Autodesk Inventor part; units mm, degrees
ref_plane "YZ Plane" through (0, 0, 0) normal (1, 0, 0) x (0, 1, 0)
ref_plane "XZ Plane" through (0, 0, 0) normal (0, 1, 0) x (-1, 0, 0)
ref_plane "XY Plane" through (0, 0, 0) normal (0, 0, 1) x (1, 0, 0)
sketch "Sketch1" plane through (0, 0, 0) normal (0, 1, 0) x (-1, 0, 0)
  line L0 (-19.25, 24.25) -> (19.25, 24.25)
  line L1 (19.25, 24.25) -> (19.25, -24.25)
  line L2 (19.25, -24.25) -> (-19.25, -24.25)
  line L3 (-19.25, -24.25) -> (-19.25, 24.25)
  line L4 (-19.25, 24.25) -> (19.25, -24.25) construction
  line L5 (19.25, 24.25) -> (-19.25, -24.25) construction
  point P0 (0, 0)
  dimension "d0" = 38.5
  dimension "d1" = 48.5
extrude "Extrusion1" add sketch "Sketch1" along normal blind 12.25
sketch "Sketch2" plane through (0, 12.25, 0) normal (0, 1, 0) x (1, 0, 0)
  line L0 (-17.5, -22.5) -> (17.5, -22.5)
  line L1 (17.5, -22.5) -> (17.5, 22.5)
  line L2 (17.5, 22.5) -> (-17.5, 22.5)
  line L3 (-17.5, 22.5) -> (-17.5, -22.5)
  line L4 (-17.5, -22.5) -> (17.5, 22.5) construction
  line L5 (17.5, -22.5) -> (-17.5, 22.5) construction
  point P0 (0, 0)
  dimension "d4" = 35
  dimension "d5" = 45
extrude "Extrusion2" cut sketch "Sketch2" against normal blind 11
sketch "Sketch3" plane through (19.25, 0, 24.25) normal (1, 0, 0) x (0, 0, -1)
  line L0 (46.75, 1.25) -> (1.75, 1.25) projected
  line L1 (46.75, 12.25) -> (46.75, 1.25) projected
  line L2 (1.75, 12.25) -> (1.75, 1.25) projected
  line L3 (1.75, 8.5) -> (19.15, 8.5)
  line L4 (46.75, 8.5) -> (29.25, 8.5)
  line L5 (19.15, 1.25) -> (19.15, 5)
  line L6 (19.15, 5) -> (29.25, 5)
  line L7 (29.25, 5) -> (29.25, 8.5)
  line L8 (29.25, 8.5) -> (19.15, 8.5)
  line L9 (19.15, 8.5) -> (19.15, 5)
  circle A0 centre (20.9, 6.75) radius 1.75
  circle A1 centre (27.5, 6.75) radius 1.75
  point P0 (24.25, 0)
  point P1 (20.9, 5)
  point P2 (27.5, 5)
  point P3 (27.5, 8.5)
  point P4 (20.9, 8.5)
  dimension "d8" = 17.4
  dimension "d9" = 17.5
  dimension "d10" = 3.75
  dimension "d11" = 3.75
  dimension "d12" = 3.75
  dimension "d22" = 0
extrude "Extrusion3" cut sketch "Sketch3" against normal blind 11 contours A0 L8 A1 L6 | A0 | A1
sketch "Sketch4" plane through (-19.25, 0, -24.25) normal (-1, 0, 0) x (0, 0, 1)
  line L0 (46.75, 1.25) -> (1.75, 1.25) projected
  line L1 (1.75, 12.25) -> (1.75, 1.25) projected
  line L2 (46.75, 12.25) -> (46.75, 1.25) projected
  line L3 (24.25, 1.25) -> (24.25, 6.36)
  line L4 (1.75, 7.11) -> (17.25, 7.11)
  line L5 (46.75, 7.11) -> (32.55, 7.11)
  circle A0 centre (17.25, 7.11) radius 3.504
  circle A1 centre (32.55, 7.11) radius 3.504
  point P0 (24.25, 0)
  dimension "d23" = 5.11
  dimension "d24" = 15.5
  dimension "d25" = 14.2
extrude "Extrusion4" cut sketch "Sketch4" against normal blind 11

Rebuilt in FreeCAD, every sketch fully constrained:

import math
import FreeCAD as App
import Part
import Sketcher

V = App.Vector
Q = App.Units.Quantity

doc = App.newDocument("Part")
body = doc.addObject("PartDesign::Body", "Body")

# Sketch on XZ plane
sketch1 = body.newObject("Sketcher::SketchObject", "Sketch")
sketch1.AttachmentSupport = (doc.getObject("XZ_Plane"), [""])
sketch1.MapMode = "FlatFace"
sketch1.addGeometry([
    Part.LineSegment(V(-19, 24, 0), V(19, 24, 0)),
    Part.LineSegment(V(19, 24, 0), V(19, -24, 0)),
    Part.LineSegment(V(19, -24, 0), V(-19, -24, 0)),
    Part.LineSegment(V(-19, -24, 0), V(-19, 24, 0)),
], False)
sketch1.addConstraint([
    Sketcher.Constraint("Coincident", 0, 2, 1, 1),
    Sketcher.Constraint("Coincident", 1, 2, 2, 1),
    Sketcher.Constraint("Coincident", 2, 2, 3, 1),
    Sketcher.Constraint("Coincident", 3, 2, 0, 1),
    Sketcher.Constraint("Horizontal", 0),
    Sketcher.Constraint("Vertical", 1),
    Sketcher.Constraint("Horizontal", 2),
    Sketcher.Constraint("Vertical", 3),
    Sketcher.Constraint("Symmetric", 0, 2, 2, 2, -1, 1),
    Sketcher.Constraint("DistanceX", 0, 1, 0, 2, Q("38.5 mm")),
    Sketcher.Constraint("DistanceY", 1, 2, 1, 1, Q("48.5 mm")),
])
pad1 = body.newObject("PartDesign::Pad", "Pad")
pad1.Profile = sketch1
pad1.Length = 12.25
pad1.Reversed = True

# Sketch on XZ plane
sketch2 = body.newObject("Sketcher::SketchObject", "Sketch001")
sketch2.AttachmentSupport = (doc.getObject("XZ_Plane"), [""])
sketch2.MapMode = "FlatFace"
sketch2.AttachmentOffset = App.Placement(V(0, 0, -12.25), App.Rotation())
sketch2.addGeometry([
    Part.LineSegment(V(-18, -22, 0), V(-18, 22, 0)),
    Part.LineSegment(V(-18, 22, 0), V(18, 22, 0)),
    Part.LineSegment(V(18, 22, 0), V(18, -22, 0)),
    Part.LineSegment(V(18, -22, 0), V(-18, -22, 0)),
], False)
sketch2.addConstraint([
    Sketcher.Constraint("Coincident", 0, 2, 1, 1),
    Sketcher.Constraint("Coincident", 1, 2, 2, 1),
    Sketcher.Constraint("Coincident", 2, 2, 3, 1),
    Sketcher.Constraint("Coincident", 3, 2, 0, 1),
    Sketcher.Constraint("Vertical", 0),
    Sketcher.Constraint("Horizontal", 1),
    Sketcher.Constraint("Vertical", 2),
    Sketcher.Constraint("Horizontal", 3),
    Sketcher.Constraint("Symmetric", 0, 2, 2, 2, -1, 1),
    Sketcher.Constraint("DistanceX", 1, 1, 1, 2, Q("35 mm")),
    Sketcher.Constraint("DistanceY", 0, 1, 0, 2, Q("45 mm")),
])
pocket1 = body.newObject("PartDesign::Pocket", "Pocket")
pocket1.Profile = sketch2
pocket1.Length = 11
pocket1.Reversed = True

# Sketch on YZ plane
sketch3 = body.newObject("Sketcher::SketchObject", "Sketch002")
sketch3.AttachmentSupport = (doc.getObject("YZ_Plane"), [""])
sketch3.MapMode = "FlatFace"
sketch3.AttachmentOffset = App.Placement(V(0, 0, 19.25), App.Rotation())
sketch3.addGeometry([
    Part.LineSegment(V(8.5, -3.2, 0), V(8.5, 3.4, 0)),
    Part.ArcOfCircle(Part.Circle(V(6.8, 3.4, 0), V(0, 0, 1), 1.8), math.radians(0), math.radians(180)),
    Part.LineSegment(V(5, 3.4, 0), V(5, -3.2, 0)),
    Part.ArcOfCircle(Part.Circle(V(6.8, -3.2, 0), V(0, 0, 1), 1.8), math.radians(180), math.radians(360)),
], False)
sketch3.addConstraint([
    Sketcher.Constraint("Tangent", 0, 2, 1, 1),
    Sketcher.Constraint("Tangent", 1, 2, 2, 1),
    Sketcher.Constraint("Tangent", 2, 2, 3, 1),
    Sketcher.Constraint("Tangent", 3, 2, 0, 1),
    Sketcher.Constraint("Vertical", 0),
    Sketcher.Constraint("Vertical", 2),
    Sketcher.Constraint("Radius", 1, Q("1.75 mm")),
    Sketcher.Constraint("DistanceY", 0, 1, 0, 2, Q("6.6 mm")),
    Sketcher.Constraint("DistanceX", -1, 1, 1, 2, Q("5 mm")),
    Sketcher.Constraint("DistanceY", -1, 1, 1, 3, Q("3.35 mm")),
])
pocket2 = body.newObject("PartDesign::Pocket", "Pocket001")
pocket2.Profile = sketch3
pocket2.Length = 11

# Sketch on YZ plane
sketch4 = body.newObject("Sketcher::SketchObject", "Sketch003")
sketch4.AttachmentSupport = (doc.getObject("YZ_Plane"), [""])
sketch4.MapMode = "FlatFace"
sketch4.AttachmentOffset = App.Placement(V(0, 0, -19.25), App.Rotation())
sketch4.addGeometry([
    Part.Circle(V(7.1, -7, 0), V(0, 0, 1), 3.5),
    Part.Circle(V(7.1, 8.3, 0), V(0, 0, 1), 3.5),
], False)
sketch4.addConstraint([
    Sketcher.Constraint("Equal", 0, 1),
    Sketcher.Constraint("Vertical", 0, 3, 1, 3),
    Sketcher.Constraint("Diameter", 0, Q("7.008 mm")),
    Sketcher.Constraint("DistanceY", 0, 3, -1, 1, Q("7 mm")),
    Sketcher.Constraint("DistanceY", -1, 1, 1, 3, Q("8.3 mm")),
    Sketcher.Constraint("DistanceX", -1, 1, 0, 3, Q("7.11 mm")),
])
pocket3 = body.newObject("PartDesign::Pocket", "Pocket002")
pocket3.Profile = sketch4
pocket3.Length = 11
pocket3.Reversed = True

doc.recompute()
